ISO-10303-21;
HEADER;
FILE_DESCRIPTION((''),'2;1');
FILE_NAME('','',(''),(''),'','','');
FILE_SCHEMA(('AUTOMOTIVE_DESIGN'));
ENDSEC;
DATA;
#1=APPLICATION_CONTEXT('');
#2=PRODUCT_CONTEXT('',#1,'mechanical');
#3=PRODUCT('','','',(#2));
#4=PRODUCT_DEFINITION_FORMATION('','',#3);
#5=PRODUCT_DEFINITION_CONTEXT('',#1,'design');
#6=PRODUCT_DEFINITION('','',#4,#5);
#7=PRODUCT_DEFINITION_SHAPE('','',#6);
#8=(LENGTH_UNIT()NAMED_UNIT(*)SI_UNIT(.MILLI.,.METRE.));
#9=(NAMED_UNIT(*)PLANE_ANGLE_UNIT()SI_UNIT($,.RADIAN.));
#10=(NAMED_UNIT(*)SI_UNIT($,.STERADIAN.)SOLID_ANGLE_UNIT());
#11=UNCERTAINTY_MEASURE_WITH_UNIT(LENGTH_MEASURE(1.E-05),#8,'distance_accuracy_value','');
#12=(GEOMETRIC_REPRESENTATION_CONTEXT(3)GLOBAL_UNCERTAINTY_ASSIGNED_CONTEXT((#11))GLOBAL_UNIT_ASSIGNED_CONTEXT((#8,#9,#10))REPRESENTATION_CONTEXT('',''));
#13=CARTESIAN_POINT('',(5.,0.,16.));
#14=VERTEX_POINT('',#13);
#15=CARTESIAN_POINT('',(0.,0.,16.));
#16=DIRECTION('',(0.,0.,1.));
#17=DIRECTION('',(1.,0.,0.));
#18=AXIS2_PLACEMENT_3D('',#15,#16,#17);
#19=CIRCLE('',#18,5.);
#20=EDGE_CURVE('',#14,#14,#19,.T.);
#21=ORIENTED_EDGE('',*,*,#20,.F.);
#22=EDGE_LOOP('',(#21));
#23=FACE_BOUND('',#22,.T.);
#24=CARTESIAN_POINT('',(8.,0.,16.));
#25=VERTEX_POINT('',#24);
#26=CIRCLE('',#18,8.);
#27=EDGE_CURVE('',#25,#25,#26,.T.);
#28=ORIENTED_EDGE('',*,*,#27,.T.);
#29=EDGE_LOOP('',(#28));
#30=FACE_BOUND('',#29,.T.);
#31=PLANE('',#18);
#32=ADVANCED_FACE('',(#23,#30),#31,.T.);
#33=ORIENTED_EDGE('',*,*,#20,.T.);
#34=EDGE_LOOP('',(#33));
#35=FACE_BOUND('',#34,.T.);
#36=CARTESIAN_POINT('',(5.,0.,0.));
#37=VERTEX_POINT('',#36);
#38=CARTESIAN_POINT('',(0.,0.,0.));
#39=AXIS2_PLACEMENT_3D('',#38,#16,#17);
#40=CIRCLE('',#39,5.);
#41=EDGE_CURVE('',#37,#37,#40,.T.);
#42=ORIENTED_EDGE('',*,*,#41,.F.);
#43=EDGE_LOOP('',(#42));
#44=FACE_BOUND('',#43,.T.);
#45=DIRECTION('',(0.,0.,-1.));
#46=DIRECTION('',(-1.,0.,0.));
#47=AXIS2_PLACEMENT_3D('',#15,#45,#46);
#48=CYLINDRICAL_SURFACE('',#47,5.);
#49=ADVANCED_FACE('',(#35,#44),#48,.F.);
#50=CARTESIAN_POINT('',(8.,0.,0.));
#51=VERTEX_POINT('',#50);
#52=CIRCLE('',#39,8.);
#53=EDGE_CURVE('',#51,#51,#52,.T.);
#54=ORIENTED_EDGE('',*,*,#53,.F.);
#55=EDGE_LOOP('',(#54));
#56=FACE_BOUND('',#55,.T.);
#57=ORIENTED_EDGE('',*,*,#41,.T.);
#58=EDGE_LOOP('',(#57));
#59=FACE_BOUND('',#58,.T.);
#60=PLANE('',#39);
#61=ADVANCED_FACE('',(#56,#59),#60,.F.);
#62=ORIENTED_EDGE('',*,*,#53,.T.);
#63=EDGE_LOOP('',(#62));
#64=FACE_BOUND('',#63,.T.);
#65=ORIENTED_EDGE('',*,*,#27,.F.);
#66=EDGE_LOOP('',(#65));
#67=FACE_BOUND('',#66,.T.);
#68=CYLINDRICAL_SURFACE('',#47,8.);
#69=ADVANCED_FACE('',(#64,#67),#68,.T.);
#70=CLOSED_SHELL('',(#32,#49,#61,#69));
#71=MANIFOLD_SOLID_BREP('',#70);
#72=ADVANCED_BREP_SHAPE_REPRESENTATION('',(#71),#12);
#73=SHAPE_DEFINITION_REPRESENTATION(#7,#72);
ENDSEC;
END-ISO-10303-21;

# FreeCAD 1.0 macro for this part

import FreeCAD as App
import Part
import Sketcher

doc = App.newDocument("Part")
body = doc.addObject("PartDesign::Body", "Body")

sketch1 = body.newObject("Sketcher::SketchObject", "Sketch")
sketch1.AttachmentSupport = (doc.getObject("XY_Plane"), [""])
sketch1.MapMode = "FlatFace"
sketch1.addGeometry([
    Part.Circle(App.Vector(0, 0, 0), App.Vector(0, 0, 1), 8),
    Part.Circle(App.Vector(0, 0, 0), App.Vector(0, 0, 1), 5),
], False)
sketch1.addConstraint([
    Sketcher.Constraint("Coincident", 0, 3, -1, 1),
    Sketcher.Constraint("Coincident", 1, 3, -1, 1),
    Sketcher.Constraint("Diameter", 0, 16.0),
    Sketcher.Constraint("Diameter", 1, 10.0),
])
pad1 = body.newObject("PartDesign::Pad", "Pad")
pad1.Profile = sketch1
pad1.Length = 16

doc.recompute()
